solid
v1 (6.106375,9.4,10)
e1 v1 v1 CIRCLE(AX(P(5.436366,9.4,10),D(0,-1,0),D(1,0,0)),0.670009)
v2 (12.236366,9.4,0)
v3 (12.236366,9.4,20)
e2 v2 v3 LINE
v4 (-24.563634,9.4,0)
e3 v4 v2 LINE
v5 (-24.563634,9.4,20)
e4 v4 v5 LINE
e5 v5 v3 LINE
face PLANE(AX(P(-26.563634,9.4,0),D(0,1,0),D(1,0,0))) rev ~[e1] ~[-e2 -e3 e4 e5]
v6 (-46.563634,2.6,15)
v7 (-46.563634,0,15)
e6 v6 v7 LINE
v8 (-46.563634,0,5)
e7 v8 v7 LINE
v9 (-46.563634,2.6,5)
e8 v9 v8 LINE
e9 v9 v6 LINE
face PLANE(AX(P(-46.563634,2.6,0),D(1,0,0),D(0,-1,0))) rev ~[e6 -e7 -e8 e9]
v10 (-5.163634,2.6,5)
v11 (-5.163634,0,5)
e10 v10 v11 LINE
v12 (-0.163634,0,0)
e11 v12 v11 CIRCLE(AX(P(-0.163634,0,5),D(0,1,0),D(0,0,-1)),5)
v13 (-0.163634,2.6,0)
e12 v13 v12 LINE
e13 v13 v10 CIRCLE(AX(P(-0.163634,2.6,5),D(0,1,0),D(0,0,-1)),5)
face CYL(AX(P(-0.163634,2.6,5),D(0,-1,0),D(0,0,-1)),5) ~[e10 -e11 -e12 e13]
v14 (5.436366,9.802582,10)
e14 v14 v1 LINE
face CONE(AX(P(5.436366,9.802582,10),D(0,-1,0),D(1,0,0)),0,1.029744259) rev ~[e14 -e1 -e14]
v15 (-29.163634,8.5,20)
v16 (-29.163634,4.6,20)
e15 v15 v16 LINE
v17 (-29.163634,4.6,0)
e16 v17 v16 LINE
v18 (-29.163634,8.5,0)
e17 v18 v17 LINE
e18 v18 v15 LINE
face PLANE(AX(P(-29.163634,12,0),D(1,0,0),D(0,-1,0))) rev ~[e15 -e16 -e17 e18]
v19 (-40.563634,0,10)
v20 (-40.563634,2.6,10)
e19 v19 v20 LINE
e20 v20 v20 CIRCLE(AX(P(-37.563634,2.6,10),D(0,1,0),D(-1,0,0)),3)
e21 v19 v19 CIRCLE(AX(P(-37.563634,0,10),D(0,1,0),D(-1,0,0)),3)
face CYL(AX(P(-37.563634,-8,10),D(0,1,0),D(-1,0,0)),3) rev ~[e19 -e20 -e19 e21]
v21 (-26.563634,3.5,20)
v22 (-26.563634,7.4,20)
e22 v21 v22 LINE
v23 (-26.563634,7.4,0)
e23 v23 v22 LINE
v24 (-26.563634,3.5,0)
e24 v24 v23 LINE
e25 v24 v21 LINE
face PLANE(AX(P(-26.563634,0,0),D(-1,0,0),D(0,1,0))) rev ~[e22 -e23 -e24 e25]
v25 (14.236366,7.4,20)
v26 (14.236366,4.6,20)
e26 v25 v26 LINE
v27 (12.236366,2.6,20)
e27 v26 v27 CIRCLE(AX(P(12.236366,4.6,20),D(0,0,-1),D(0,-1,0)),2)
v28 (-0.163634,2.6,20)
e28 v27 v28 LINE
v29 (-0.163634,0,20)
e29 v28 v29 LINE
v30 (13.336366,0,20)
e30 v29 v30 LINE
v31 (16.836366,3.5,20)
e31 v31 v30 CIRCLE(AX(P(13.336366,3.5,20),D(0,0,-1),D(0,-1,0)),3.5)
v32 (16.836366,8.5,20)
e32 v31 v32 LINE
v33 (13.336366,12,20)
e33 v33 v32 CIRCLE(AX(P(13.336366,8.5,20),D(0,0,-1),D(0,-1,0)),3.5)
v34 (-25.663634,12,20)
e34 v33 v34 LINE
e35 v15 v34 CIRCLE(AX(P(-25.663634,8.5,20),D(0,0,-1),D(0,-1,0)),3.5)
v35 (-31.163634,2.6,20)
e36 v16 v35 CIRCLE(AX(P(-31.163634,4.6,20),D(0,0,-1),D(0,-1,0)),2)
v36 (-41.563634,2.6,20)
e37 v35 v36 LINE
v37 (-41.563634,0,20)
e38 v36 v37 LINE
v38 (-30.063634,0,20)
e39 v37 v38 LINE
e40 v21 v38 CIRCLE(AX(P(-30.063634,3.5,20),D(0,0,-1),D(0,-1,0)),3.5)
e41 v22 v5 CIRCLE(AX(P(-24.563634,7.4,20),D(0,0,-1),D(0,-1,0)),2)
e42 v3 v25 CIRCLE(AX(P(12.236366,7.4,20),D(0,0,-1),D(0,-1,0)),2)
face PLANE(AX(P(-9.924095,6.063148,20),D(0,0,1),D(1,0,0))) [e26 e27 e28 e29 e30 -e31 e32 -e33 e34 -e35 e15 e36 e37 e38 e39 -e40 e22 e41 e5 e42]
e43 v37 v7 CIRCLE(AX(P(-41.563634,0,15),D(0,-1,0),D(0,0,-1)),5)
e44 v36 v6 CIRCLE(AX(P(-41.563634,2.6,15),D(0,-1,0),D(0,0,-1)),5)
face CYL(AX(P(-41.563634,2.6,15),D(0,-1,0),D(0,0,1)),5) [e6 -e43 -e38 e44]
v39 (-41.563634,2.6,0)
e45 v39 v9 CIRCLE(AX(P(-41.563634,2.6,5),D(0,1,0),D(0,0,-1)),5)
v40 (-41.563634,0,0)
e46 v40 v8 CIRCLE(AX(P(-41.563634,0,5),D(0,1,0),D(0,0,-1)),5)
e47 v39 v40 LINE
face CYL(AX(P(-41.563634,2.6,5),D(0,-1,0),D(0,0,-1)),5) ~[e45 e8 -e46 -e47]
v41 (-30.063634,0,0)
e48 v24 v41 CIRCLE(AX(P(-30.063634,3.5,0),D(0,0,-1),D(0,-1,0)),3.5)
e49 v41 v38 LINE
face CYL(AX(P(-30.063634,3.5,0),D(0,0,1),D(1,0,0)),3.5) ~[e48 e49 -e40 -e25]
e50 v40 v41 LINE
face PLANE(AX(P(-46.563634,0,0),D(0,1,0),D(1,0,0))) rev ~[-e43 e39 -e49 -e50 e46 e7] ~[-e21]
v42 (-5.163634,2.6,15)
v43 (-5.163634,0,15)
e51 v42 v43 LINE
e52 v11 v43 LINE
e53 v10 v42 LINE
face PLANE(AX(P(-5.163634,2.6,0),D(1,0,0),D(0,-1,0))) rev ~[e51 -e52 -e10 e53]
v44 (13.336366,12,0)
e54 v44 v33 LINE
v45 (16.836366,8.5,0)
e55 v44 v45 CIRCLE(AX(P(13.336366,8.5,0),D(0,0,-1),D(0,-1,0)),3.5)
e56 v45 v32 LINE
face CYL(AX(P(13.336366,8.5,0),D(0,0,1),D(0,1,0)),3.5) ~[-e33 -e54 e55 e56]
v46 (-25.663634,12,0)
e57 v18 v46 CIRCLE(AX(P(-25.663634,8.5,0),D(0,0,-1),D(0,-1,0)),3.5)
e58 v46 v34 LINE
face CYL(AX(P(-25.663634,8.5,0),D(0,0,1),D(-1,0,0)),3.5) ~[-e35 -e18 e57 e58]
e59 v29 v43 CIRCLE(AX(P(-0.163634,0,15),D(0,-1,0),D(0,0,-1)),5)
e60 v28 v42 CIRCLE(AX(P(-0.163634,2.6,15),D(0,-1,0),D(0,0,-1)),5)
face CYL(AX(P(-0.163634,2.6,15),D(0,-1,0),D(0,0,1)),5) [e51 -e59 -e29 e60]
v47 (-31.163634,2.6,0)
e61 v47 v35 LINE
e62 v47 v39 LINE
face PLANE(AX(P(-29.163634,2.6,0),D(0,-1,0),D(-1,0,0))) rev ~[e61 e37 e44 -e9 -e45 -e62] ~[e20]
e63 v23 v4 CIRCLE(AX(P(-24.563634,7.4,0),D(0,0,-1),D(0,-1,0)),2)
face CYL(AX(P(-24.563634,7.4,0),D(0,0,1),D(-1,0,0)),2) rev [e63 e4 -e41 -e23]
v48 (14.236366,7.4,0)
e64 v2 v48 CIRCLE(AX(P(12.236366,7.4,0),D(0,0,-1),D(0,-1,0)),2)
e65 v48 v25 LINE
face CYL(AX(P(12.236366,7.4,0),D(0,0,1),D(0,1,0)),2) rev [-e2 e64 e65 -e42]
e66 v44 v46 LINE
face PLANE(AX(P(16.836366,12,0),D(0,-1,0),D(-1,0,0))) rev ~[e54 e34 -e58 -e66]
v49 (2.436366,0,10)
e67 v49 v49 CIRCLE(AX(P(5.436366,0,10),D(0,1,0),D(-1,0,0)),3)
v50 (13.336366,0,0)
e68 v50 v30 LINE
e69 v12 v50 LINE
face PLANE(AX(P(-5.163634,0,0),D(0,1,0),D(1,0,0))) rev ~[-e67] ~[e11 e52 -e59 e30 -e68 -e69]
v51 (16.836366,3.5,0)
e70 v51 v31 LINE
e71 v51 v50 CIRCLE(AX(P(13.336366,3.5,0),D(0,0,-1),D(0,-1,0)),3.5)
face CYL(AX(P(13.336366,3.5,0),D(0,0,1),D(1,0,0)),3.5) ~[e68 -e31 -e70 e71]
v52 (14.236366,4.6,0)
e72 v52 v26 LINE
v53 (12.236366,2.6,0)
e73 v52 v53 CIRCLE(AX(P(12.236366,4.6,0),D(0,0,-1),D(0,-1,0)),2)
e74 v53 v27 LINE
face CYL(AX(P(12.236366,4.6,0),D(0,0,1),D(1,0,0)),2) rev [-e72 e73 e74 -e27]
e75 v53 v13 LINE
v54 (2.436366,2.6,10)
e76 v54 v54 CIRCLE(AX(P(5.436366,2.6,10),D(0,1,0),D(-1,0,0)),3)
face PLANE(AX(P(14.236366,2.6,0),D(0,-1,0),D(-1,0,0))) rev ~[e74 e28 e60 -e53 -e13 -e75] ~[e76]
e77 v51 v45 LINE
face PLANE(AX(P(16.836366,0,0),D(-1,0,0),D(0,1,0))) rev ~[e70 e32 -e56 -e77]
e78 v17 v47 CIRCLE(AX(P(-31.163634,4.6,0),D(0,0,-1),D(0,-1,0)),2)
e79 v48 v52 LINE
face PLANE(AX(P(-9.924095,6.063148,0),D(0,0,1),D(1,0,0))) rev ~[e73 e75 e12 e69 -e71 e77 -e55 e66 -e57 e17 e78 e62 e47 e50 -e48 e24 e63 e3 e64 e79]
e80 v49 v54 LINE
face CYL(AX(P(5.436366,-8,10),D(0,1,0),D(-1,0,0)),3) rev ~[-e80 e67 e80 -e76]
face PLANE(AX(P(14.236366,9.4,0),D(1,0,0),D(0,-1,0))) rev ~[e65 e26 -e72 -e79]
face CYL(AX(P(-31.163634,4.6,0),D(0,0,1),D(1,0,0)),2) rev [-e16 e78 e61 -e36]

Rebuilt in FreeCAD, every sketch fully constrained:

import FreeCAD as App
import Part
import Sketcher


def edges_at(feature, points):
    """Names of the edges that pass closest to the given points."""
    edges = feature.Shape.Edges
    near = lambda p: min(range(len(edges)), key=lambda i: edges[i].distToShape(Part.Vertex(*p))[0])
    return sorted({f"Edge{near(p) + 1}" for p in points})

doc = App.newDocument("Part")
body = doc.addObject("PartDesign::Body", "Body")

# Sketch on XY plane
sketch1 = doc.addObject("Sketcher::SketchObject", "Sketch")
body.addObject(sketch1)
sketch1.AttachmentSupport = (doc.XY_Plane, [""])
sketch1.MapMode = "FlatFace"
sketch1.addGeometry(Part.LineSegment(App.Vector(-46.563634, 2.6, 0), App.Vector(-46.563634, 0, 0)), False)
sketch1.addGeometry(Part.LineSegment(App.Vector(-46.563634, 0, 0), App.Vector(-26.563634, 0, 0)), False)
sketch1.addGeometry(Part.LineSegment(App.Vector(-26.563634, 0, 0), App.Vector(-26.563634, 9.4, 0)), False)
sketch1.addGeometry(Part.LineSegment(App.Vector(-26.563634, 9.4, 0), App.Vector(14.236366, 9.4, 0)), False)
sketch1.addGeometry(Part.LineSegment(App.Vector(14.236366, 9.4, 0), App.Vector(14.236366, 2.6, 0)), False)
sketch1.addGeometry(Part.LineSegment(App.Vector(14.236366, 2.6, 0), App.Vector(-5.163634, 2.6, 0)), False)
sketch1.addGeometry(Part.LineSegment(App.Vector(-5.163634, 2.6, 0), App.Vector(-5.163634, 0, 0)), False)
sketch1.addGeometry(Part.LineSegment(App.Vector(-5.163634, 0, 0), App.Vector(16.836366, 0, 0)), False)
sketch1.addGeometry(Part.LineSegment(App.Vector(16.836366, 0, 0), App.Vector(16.836366, 12, 0)), False)
sketch1.addGeometry(Part.LineSegment(App.Vector(16.836366, 12, 0), App.Vector(-29.163634, 12, 0)), False)
sketch1.addGeometry(Part.LineSegment(App.Vector(-29.163634, 12, 0), App.Vector(-29.163634, 2.6, 0)), False)
sketch1.addGeometry(Part.LineSegment(App.Vector(-29.163634, 2.6, 0), App.Vector(-46.563634, 2.6, 0)), False)
sketch1.addConstraint(Sketcher.Constraint("Coincident", 0, 2, 1, 1))
sketch1.addConstraint(Sketcher.Constraint("Coincident", 1, 2, 2, 1))
sketch1.addConstraint(Sketcher.Constraint("Coincident", 2, 2, 3, 1))
sketch1.addConstraint(Sketcher.Constraint("Coincident", 3, 2, 4, 1))
sketch1.addConstraint(Sketcher.Constraint("Coincident", 4, 2, 5, 1))
sketch1.addConstraint(Sketcher.Constraint("Coincident", 5, 2, 6, 1))
sketch1.addConstraint(Sketcher.Constraint("Coincident", 6, 2, 7, 1))
sketch1.addConstraint(Sketcher.Constraint("Coincident", 7, 2, 8, 1))
sketch1.addConstraint(Sketcher.Constraint("Coincident", 8, 2, 9, 1))
sketch1.addConstraint(Sketcher.Constraint("Coincident", 9, 2, 10, 1))
sketch1.addConstraint(Sketcher.Constraint("Coincident", 10, 2, 11, 1))
sketch1.addConstraint(Sketcher.Constraint("Coincident", 11, 2, 0, 1))
sketch1.addConstraint(Sketcher.Constraint("Vertical", 0))
sketch1.addConstraint(Sketcher.Constraint("Horizontal", 1))
sketch1.addConstraint(Sketcher.Constraint("Vertical", 2))
sketch1.addConstraint(Sketcher.Constraint("Horizontal", 3))
sketch1.addConstraint(Sketcher.Constraint("Vertical", 4))
sketch1.addConstraint(Sketcher.Constraint("Horizontal", 5))
sketch1.addConstraint(Sketcher.Constraint("Vertical", 6))
sketch1.addConstraint(Sketcher.Constraint("Horizontal", 7))
sketch1.addConstraint(Sketcher.Constraint("Vertical", 8))
sketch1.addConstraint(Sketcher.Constraint("Horizontal", 9))
sketch1.addConstraint(Sketcher.Constraint("Vertical", 10))
sketch1.addConstraint(Sketcher.Constraint("Horizontal", 11))
sketch1.addConstraint(Sketcher.Constraint("PointOnObject", 0, 2, -1))
sketch1.addConstraint(Sketcher.Constraint("PointOnObject", 6, 2, -1))
sketch1.addConstraint(Sketcher.Constraint("Horizontal", 5, 2, 10, 2))
sketch1.addConstraint(Sketcher.Constraint("Equal", 2, 10))
sketch1.addConstraint(Sketcher.Constraint("DistanceX", 1, 1, 1, 2, 20.0))
sketch1.addConstraint(Sketcher.Constraint("DistanceX", 7, 1, 7, 2, 22.0))
sketch1.addConstraint(Sketcher.Constraint("DistanceX", 9, 2, 9, 1, 46.0))
sketch1.addConstraint(Sketcher.Constraint("DistanceY", 8, 1, 8, 2, 12.0))
sketch1.addConstraint(Sketcher.Constraint("DistanceX", 3, 1, 3, 2, 40.8))
sketch1.addConstraint(Sketcher.Constraint("DistanceX", 5, 2, 5, 1, 19.4))
sketch1.addConstraint(Sketcher.Constraint("DistanceY", 0, 2, 0, 1, 2.6))
sketch1.addConstraint(Sketcher.Constraint("DistanceX", 0, 2, -1, 1, 46.563634))
pad1 = doc.addObject("PartDesign::Pad", "Pad")
body.addObject(pad1)
pad1.Profile = sketch1
pad1.Length = 20
doc.recompute()

fillet = doc.addObject("PartDesign::Fillet", "Fillet")
body.addObject(fillet)
fillet.Base = (pad1, edges_at(pad1, [
    (-29.164, 2.6, 10),
    (14.236, 2.6, 10),
    (14.236, 9.4, 10),
    (-26.564, 9.4, 10),
]))
fillet.Radius = 2
doc.recompute()

fillet2 = doc.addObject("PartDesign::Fillet", "Fillet001")
body.addObject(fillet2)
fillet2.Base = (fillet, edges_at(fillet, [
    (16.836, 12, 10),
    (-29.164, 12, 10),
    (-26.564, 0, 10),
    (16.836, 0, 10),
]))
fillet2.Radius = 3.5
doc.recompute()

fillet3 = doc.addObject("PartDesign::Fillet", "Fillet002")
body.addObject(fillet3)
fillet3.Base = (fillet2, edges_at(fillet2, [
    (-46.564, 1.3, 0),
    (-46.564, 1.3, 20),
    (-5.164, 1.3, 20),
    (-5.164, 1.3, 0),
]))
fillet3.Radius = 5

# Sketch on XZ plane
sketch2 = doc.addObject("Sketcher::SketchObject", "Sketch001")
body.addObject(sketch2)
sketch2.AttachmentSupport = (doc.XZ_Plane, [""])
sketch2.MapMode = "FlatFace"
sketch2.addGeometry(Part.Circle(App.Vector(-37.563634, 10, 0), App.Vector(0, 0, 1), 3), False)
sketch2.addGeometry(Part.Circle(App.Vector(5.436366, 10, 0), App.Vector(0, 0, 1), 3), False)
sketch2.addConstraint(Sketcher.Constraint("Equal", 0, 1))
sketch2.addConstraint(Sketcher.Constraint("Horizontal", 0, 3, 1, 3))
sketch2.addConstraint(Sketcher.Constraint("Diameter", 0, 6.0))
sketch2.addConstraint(Sketcher.Constraint("DistanceY", -1, 1, 0, 3, 10.0))
sketch2.addConstraint(Sketcher.Constraint("DistanceX", 0, 3, 1, 3, 43.0))
sketch2.addConstraint(Sketcher.Constraint("DistanceX", 0, 3, -1, 1, 37.563634))
doc.recompute()
hole = doc.addObject("PartDesign::Hole", "Hole")
body.addObject(hole)
hole.Profile = sketch2
hole.ThreadType = "None"
hole.Diameter = 6
hole.DepthType = "Dimension"
hole.Depth = 8
hole.DrillPoint = "Angled"
hole.DrillPointAngle = 118

doc.recompute()
